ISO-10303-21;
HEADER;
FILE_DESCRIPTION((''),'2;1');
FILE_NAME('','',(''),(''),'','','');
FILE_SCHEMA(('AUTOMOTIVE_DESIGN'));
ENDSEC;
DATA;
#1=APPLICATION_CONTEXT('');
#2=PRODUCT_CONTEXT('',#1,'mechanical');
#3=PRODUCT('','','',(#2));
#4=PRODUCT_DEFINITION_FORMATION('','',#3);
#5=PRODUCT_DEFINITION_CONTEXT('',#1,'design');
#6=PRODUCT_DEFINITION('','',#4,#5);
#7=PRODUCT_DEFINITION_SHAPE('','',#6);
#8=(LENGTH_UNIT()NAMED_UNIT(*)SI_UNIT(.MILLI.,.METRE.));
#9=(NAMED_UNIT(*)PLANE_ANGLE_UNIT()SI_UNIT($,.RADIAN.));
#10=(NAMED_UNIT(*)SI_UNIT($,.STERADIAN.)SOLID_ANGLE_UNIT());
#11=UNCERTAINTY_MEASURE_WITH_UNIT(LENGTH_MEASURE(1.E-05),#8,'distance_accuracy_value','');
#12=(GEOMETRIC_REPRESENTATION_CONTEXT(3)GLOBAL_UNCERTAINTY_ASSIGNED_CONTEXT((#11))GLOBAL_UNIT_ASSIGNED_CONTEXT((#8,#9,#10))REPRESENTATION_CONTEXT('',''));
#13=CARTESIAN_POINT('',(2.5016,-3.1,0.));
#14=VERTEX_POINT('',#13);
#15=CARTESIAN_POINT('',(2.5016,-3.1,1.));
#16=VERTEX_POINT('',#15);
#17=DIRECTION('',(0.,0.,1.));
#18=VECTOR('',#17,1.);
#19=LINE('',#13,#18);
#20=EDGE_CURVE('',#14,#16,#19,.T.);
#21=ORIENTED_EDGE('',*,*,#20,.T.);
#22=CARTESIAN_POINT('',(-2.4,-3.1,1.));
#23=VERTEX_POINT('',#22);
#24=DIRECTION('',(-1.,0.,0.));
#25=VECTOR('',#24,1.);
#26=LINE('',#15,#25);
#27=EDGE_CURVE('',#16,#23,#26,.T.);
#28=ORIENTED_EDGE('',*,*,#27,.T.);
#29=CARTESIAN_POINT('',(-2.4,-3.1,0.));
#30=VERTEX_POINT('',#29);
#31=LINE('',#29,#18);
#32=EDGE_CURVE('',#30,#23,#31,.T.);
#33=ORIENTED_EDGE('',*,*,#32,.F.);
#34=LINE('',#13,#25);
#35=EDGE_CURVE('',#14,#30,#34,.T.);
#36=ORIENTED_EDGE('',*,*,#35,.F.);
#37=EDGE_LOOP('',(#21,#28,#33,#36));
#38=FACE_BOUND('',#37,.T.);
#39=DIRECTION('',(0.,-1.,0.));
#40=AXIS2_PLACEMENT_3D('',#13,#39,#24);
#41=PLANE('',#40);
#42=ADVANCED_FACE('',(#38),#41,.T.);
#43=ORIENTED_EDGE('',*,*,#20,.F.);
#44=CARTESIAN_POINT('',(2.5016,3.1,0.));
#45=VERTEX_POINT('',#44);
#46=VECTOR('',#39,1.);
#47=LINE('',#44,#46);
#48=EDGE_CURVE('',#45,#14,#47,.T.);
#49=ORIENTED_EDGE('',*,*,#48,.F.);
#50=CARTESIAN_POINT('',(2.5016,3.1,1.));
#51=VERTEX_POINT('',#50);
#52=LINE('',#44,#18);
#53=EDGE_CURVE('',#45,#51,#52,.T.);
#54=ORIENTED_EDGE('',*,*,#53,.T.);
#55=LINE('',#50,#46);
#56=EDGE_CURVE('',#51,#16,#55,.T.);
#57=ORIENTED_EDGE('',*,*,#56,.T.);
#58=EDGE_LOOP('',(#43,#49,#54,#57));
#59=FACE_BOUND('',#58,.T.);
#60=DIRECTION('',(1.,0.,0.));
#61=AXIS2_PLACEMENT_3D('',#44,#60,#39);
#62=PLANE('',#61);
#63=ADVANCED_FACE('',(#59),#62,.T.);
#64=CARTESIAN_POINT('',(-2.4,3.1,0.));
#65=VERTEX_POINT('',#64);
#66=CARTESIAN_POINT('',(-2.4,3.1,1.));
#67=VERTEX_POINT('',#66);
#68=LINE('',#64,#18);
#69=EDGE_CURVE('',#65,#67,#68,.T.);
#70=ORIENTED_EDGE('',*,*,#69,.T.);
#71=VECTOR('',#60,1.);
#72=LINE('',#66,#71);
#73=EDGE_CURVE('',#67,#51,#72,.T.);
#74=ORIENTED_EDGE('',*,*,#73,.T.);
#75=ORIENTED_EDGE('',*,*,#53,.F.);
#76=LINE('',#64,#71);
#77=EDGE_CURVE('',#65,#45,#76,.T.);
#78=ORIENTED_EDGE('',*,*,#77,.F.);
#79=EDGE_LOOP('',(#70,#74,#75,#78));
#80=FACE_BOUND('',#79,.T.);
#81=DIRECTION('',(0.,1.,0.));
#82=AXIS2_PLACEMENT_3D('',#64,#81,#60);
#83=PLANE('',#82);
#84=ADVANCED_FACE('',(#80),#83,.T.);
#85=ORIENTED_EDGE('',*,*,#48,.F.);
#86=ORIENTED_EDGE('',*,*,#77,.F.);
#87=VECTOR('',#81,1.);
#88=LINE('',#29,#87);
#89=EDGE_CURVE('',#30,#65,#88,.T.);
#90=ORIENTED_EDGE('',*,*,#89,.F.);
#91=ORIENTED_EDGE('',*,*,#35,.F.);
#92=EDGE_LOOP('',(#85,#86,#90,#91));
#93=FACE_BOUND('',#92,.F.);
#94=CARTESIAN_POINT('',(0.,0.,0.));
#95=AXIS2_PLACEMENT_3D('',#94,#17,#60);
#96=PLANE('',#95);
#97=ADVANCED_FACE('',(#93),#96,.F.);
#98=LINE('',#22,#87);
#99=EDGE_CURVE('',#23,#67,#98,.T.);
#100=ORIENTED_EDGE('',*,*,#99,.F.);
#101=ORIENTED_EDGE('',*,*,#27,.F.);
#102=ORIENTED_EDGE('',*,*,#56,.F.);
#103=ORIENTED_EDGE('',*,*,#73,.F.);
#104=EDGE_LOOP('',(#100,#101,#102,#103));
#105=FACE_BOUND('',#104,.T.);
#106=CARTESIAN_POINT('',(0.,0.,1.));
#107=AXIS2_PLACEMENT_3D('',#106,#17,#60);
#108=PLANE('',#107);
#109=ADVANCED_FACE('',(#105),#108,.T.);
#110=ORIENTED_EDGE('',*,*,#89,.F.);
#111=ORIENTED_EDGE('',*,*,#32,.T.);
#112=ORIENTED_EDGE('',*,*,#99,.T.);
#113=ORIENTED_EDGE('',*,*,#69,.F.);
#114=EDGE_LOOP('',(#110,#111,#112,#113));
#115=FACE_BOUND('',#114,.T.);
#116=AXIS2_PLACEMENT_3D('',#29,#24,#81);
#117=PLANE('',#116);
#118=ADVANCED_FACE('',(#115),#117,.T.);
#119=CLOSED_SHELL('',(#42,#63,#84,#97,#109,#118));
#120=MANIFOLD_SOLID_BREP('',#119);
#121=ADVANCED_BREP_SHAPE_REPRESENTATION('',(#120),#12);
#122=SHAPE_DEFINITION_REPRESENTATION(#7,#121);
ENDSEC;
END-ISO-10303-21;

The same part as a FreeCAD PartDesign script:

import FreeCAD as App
import Part
import Sketcher

V = App.Vector
Q = App.Units.Quantity

doc = App.newDocument("Part")
params = doc.addObject("Spreadsheet::Sheet", "Params")
for row, (alias, value) in enumerate([
    ("sketch1_height", "6.2 mm"),
    ("pad1_length", "1 mm"),
], start=1):
    params.set(f"A{row}", alias)
    params.set(f"B{row}", "=" + value)
    params.setAlias(f"B{row}", alias)

body = doc.addObject("PartDesign::Body", "Body")

# Sketch on XY plane
sketch1 = body.newObject("Sketcher::SketchObject", "Sketch")
sketch1.AttachmentSupport = (doc.getObject("XY_Plane"), [""])
sketch1.MapMode = "FlatFace"
sketch1.addGeometry(Part.LineSegment(V(2.5, 3.1, 0), V(-2.4, 3.1, 0)), False)
sketch1.addGeometry(Part.LineSegment(V(-2.4, 3.1, 0), V(-2.4, -3.1, 0)), False)
sketch1.addGeometry(Part.LineSegment(V(-2.4, -3.1, 0), V(2.5, -3.1, 0)), False)
sketch1.addGeometry(Part.LineSegment(V(2.5, -3.1, 0), V(2.5, 3.1, 0)), False)
sketch1.addConstraint(Sketcher.Constraint("Coincident", 0, 2, 1, 1))
sketch1.addConstraint(Sketcher.Constraint("Coincident", 1, 2, 2, 1))
sketch1.addConstraint(Sketcher.Constraint("Coincident", 2, 2, 3, 1))
sketch1.addConstraint(Sketcher.Constraint("Coincident", 3, 2, 0, 1))
sketch1.addConstraint(Sketcher.Constraint("Horizontal", 0))
sketch1.addConstraint(Sketcher.Constraint("Vertical", 1))
sketch1.addConstraint(Sketcher.Constraint("Horizontal", 2))
sketch1.addConstraint(Sketcher.Constraint("Vertical", 3))
sketch1.addConstraint(Sketcher.Constraint("DistanceY", 1, 2, 1, 1, Q("6.2 mm")))
sketch1.addConstraint(Sketcher.Constraint("DistanceX", 0, 2, -1, 1, Q("2.4 mm")))
sketch1.addConstraint(Sketcher.Constraint("DistanceY", -1, 1, 0, 2, Q("3.1 mm")))
sketch1.addConstraint(Sketcher.Constraint("DistanceX", 0, 2, 0, 1, Q("4.9016 mm")))
sketch1.setExpression("Constraints[8]", "Params.sketch1_height")
pad1 = body.newObject("PartDesign::Pad", "Pad")
pad1.Profile = sketch1
pad1.setExpression("Length", "Params.pad1_length")

doc.recompute()
